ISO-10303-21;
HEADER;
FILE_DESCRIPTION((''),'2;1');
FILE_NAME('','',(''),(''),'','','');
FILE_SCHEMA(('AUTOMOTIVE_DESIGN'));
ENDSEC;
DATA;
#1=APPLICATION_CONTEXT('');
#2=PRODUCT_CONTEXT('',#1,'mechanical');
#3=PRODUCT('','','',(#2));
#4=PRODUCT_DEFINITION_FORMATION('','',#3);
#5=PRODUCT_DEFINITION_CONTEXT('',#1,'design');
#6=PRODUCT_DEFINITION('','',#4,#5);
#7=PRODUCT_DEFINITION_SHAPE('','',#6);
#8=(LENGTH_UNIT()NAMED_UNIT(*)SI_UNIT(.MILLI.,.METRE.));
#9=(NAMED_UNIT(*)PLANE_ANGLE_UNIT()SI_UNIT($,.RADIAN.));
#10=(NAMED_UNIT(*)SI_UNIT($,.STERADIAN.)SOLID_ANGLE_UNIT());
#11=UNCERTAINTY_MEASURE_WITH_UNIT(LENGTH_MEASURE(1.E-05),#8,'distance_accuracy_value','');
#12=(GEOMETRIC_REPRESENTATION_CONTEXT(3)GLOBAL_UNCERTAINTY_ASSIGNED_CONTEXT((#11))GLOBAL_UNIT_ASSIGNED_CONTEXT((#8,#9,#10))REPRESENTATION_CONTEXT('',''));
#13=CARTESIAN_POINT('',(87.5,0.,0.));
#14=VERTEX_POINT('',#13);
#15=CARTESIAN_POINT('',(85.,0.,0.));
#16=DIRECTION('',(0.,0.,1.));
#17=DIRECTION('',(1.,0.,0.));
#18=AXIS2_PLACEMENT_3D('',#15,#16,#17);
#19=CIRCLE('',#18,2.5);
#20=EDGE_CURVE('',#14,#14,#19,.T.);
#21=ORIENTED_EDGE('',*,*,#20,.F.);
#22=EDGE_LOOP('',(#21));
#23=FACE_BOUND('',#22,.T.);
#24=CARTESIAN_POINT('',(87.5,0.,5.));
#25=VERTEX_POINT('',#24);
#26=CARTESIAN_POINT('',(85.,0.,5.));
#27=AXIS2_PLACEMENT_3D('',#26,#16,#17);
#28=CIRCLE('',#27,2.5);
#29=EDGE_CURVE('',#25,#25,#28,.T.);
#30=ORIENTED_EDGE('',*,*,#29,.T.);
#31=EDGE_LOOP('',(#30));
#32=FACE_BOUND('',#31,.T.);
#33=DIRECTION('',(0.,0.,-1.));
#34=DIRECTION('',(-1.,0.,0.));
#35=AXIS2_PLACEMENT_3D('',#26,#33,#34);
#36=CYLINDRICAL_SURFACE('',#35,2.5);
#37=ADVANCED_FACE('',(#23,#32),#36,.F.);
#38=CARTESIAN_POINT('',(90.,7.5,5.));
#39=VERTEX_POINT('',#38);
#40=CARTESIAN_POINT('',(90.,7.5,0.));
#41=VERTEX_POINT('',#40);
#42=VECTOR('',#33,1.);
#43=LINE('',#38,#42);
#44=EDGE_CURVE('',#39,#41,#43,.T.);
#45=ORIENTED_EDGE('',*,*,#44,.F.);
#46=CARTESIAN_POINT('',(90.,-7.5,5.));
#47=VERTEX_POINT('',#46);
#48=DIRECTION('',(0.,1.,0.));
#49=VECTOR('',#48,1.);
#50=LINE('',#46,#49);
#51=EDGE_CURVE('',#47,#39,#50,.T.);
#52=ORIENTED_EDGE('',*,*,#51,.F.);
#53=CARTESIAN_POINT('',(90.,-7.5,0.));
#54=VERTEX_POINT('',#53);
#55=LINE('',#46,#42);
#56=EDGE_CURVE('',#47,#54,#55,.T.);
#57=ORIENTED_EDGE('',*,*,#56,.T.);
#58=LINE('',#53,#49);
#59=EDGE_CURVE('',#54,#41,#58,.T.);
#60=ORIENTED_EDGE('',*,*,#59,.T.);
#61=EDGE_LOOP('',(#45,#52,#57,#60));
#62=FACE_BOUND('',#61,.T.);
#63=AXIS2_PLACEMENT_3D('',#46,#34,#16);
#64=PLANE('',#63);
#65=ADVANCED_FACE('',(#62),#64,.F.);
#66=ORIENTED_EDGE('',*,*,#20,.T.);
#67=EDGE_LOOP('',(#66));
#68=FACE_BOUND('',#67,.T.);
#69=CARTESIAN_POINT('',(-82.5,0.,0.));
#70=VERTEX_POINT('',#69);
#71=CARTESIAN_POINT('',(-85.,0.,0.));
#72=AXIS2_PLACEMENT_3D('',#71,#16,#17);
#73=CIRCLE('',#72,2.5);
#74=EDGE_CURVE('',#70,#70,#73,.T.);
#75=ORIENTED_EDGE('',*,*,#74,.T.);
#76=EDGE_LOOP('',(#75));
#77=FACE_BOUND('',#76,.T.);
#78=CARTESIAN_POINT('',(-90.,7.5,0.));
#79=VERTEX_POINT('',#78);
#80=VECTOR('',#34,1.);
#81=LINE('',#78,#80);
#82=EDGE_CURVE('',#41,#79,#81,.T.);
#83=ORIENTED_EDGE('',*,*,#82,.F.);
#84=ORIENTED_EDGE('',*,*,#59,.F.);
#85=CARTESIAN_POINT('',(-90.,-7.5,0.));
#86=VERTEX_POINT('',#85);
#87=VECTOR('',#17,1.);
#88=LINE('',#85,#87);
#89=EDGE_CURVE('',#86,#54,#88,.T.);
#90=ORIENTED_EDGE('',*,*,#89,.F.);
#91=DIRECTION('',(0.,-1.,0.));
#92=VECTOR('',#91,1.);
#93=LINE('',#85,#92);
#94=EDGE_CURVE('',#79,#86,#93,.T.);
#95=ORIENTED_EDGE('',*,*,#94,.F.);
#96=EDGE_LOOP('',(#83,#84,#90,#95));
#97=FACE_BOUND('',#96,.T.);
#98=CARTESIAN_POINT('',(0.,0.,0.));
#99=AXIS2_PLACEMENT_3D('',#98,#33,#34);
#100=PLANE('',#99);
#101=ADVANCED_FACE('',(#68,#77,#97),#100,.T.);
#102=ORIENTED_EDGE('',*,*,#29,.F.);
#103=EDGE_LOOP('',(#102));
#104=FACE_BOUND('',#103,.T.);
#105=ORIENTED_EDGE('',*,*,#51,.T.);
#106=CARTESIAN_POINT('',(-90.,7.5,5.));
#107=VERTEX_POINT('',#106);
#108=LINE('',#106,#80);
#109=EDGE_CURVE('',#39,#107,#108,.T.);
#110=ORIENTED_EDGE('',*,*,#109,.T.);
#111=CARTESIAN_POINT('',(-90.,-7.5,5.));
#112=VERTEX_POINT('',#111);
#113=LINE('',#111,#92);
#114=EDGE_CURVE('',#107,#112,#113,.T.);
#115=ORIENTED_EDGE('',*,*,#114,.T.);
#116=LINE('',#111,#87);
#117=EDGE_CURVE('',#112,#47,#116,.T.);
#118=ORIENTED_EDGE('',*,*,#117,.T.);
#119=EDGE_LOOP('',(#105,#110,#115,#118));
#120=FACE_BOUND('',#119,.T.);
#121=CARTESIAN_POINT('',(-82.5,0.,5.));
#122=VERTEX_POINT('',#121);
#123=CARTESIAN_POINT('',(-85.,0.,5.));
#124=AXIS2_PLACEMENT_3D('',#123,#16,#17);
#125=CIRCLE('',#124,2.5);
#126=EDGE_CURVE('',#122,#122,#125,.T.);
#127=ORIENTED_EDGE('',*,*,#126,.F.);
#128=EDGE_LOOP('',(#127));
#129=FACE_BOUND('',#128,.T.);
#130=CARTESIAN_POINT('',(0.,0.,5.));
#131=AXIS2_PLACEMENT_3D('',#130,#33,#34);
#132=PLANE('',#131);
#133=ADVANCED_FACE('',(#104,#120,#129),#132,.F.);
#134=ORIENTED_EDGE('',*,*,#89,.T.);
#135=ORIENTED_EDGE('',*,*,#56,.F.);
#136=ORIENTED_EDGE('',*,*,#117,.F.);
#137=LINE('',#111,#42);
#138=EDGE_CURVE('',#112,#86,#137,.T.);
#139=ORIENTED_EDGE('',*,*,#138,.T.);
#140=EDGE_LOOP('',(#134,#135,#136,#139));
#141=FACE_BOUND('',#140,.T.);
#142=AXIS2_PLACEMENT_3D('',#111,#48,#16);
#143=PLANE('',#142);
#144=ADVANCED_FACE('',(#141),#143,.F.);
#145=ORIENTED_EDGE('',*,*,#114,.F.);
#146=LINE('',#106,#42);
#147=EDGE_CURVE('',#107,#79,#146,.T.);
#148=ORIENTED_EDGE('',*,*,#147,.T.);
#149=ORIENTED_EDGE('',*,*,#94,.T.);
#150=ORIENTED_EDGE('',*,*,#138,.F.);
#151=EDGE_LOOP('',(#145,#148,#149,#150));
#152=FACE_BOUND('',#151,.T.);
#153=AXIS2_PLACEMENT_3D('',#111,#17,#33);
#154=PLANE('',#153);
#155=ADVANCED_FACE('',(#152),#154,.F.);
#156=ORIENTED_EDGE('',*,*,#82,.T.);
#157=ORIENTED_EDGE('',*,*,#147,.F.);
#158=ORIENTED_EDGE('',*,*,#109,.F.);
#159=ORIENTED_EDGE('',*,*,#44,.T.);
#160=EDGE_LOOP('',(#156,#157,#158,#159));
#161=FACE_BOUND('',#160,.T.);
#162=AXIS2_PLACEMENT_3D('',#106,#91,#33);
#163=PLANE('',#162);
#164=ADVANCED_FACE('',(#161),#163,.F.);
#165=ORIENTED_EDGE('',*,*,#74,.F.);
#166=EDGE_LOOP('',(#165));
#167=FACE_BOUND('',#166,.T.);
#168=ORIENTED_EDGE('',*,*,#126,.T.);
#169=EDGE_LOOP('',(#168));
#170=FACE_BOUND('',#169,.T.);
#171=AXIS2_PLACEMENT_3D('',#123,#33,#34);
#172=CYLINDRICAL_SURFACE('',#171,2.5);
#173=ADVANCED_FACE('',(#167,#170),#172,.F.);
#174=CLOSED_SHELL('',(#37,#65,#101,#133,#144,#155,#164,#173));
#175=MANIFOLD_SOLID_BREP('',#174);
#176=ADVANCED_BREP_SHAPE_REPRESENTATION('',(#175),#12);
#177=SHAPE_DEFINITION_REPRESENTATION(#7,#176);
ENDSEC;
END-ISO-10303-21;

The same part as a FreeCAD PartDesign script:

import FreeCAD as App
import Part
import Sketcher
Q = App.Units.Quantity


def add_polygon(sketch, points):
    """Adds a closed chain of lines whose ends are joined by coincident constraints."""
    first, n = sketch.GeometryCount, len(points)
    for a, b in zip(points, points[1:] + points[:1]):
        sketch.addGeometry(Part.LineSegment(App.Vector(*a, 0), App.Vector(*b, 0)), False)
    for i in range(n):
        sketch.addConstraint(Sketcher.Constraint("Coincident", first + i, 2, first + (i + 1) % n, 1))

doc = App.newDocument("Part")
body = doc.addObject("PartDesign::Body", "Body")

# Sketch on XY plane
sketch1 = body.newObject("Sketcher::SketchObject", "Sketch")
sketch1.AttachmentSupport = (doc.getObject("XY_Plane"), [""])
sketch1.MapMode = "FlatFace"
add_polygon(sketch1, [(-90, 7.5), (-90, -7.5), (90, -7.5), (90, 7.5)])  # lines 0-3
sketch1.addGeometry(Part.Circle(App.Vector(-85, 0, 0), App.Vector(0, 0, 1), 2.5), False)  # 4
sketch1.addGeometry(Part.Circle(App.Vector(85, 0, 0), App.Vector(0, 0, 1), 2.5), False)  # 5
sketch1.addConstraint([
    Sketcher.Constraint("Vertical", 0),
    Sketcher.Constraint("Horizontal", 1),
    Sketcher.Constraint("Vertical", 2),
    Sketcher.Constraint("Horizontal", 3),
    Sketcher.Constraint("Equal", 4, 5),
    Sketcher.Constraint("Symmetric", 4, 3, 5, 3, -1, 1),
    Sketcher.Constraint("Symmetric", 0, 2, 2, 2, -1, 1),
    Sketcher.Constraint("PointOnObject", 4, 3, -1),
    Sketcher.Constraint("Diameter", 4, Q("5 mm")),
    Sketcher.Constraint("DistanceX", 1, 1, 1, 2, Q("180 mm")),
    Sketcher.Constraint("DistanceY", 0, 2, 0, 1, Q("15 mm")),
    Sketcher.Constraint("DistanceX", 4, 3, -1, 1, Q("85 mm")),
])
pad1 = body.newObject("PartDesign::Pad", "Pad")
pad1.Profile = sketch1
pad1.Length = 5

doc.recompute()
